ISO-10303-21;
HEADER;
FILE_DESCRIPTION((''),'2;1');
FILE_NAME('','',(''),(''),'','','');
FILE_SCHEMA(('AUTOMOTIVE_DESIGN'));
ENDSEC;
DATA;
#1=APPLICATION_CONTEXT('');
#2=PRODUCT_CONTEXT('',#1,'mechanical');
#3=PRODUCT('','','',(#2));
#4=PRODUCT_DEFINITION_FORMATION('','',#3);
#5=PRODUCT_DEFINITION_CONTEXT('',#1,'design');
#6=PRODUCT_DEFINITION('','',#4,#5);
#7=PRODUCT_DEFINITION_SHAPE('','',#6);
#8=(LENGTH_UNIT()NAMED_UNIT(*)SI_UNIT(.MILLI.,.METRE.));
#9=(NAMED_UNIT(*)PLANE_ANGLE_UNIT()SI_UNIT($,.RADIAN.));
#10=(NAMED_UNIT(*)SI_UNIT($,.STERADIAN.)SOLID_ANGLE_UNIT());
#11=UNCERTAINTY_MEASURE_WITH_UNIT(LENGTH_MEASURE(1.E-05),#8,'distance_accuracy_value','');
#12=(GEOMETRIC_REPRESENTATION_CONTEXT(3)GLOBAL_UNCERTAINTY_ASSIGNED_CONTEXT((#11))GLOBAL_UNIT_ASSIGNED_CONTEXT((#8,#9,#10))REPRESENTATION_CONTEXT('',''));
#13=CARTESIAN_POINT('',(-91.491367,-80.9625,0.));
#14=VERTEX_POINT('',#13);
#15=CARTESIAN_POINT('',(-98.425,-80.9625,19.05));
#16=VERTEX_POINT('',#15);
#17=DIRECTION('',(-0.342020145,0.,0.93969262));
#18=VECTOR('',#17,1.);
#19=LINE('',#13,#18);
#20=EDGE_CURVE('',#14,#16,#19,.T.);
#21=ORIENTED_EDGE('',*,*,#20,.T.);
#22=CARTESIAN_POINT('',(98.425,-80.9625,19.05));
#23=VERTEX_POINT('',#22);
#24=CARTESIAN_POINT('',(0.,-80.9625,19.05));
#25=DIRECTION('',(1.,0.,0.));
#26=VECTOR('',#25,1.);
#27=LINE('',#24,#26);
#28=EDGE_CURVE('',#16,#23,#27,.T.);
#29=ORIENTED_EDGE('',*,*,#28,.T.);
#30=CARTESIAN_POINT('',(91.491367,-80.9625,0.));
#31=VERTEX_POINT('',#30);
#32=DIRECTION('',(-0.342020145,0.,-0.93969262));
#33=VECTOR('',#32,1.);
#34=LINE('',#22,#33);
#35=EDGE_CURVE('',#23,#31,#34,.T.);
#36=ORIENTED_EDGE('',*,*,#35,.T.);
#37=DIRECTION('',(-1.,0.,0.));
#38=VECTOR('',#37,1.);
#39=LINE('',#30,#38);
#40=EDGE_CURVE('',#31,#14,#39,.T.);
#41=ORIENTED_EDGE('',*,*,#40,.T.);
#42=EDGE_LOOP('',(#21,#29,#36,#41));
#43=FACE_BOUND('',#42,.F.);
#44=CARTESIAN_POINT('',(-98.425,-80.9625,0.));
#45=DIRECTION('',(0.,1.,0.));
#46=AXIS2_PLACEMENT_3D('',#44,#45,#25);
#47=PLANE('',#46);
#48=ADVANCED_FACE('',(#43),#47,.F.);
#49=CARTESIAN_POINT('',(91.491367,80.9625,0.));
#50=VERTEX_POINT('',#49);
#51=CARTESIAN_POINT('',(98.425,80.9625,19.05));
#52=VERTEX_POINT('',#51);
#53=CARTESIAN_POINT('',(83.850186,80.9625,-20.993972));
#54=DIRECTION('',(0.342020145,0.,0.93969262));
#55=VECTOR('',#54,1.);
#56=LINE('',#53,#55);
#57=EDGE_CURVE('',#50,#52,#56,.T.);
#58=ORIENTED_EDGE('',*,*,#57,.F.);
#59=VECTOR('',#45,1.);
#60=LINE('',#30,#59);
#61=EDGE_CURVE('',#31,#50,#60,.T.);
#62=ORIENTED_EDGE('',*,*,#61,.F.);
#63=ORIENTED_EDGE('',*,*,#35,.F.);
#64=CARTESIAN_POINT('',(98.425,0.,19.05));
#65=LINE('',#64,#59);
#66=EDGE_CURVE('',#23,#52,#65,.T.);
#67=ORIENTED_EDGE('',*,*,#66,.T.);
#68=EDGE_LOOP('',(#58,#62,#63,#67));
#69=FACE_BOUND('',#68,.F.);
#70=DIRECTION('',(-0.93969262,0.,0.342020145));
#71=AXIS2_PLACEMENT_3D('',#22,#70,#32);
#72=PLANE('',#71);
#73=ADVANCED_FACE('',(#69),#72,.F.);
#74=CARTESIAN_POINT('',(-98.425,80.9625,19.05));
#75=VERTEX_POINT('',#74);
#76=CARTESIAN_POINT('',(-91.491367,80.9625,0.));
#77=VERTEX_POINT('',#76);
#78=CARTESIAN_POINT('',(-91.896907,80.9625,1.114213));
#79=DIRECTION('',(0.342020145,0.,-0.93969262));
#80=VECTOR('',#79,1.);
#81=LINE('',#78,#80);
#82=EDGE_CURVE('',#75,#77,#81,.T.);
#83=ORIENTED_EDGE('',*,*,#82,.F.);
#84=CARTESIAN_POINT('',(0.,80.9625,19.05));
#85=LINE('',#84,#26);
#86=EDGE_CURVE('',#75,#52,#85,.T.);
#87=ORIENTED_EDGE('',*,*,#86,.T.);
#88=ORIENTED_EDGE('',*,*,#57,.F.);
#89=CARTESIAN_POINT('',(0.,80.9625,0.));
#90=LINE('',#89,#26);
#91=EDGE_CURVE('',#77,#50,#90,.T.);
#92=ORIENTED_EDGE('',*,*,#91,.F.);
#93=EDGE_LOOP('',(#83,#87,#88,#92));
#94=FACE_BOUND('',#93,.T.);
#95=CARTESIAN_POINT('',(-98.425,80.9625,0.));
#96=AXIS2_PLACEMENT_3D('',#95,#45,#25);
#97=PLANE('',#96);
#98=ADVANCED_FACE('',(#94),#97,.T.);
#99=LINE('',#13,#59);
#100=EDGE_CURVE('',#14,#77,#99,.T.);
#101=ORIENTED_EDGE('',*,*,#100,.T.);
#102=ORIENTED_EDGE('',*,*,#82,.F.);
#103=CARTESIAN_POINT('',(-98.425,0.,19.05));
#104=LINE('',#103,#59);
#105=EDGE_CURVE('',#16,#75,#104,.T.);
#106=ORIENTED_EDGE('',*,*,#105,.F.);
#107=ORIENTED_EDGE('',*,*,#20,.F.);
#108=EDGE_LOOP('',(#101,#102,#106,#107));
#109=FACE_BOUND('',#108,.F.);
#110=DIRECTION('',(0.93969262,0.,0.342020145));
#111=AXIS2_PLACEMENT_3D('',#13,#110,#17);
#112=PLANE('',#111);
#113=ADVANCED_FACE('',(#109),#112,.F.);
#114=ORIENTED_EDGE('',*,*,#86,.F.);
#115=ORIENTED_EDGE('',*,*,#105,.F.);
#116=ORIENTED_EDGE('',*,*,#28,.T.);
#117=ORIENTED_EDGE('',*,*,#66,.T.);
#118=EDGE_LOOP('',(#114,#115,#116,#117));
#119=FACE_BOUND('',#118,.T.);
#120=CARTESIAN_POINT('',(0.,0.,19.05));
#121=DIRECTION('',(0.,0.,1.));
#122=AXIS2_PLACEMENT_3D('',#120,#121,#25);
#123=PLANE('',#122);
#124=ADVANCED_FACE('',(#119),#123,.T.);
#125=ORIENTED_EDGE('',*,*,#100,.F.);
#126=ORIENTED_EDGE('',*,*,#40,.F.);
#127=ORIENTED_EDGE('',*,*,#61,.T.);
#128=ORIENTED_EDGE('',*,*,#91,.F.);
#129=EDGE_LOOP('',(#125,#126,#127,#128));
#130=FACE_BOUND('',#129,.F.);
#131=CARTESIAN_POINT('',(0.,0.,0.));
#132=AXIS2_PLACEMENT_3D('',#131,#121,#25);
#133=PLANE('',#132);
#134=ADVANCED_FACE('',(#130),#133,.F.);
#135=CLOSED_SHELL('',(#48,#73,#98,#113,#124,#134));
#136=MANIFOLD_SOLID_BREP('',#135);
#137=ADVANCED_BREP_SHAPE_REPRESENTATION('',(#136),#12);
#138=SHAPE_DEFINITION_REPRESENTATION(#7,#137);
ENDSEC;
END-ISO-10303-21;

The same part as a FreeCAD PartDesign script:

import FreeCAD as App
import Part
import Sketcher
Q = App.Units.Quantity


def add_polygon(sketch, points):
    """Adds a closed chain of lines whose ends are joined by coincident constraints."""
    first, n = sketch.GeometryCount, len(points)
    for a, b in zip(points, points[1:] + points[:1]):
        sketch.addGeometry(Part.LineSegment(App.Vector(*a, 0), App.Vector(*b, 0)), False)
    for i in range(n):
        sketch.addConstraint(Sketcher.Constraint("Coincident", first + i, 2, first + (i + 1) % n, 1))

doc = App.newDocument("Part")
body = doc.addObject("PartDesign::Body", "Body")

sketch1 = body.newObject("Sketcher::SketchObject", "Sketch")
sketch1.AttachmentSupport = (doc.getObject("XY_Plane"), [""])
sketch1.MapMode = "FlatFace"
add_polygon(sketch1, [(-98.425, 80.9625), (-98.425, -80.9625), (98.425, -80.9625), (98.425, 80.9625)])
sketch1.addConstraint([
    Sketcher.Constraint("Vertical", 0),
    Sketcher.Constraint("Horizontal", 1),
    Sketcher.Constraint("Vertical", 2),
    Sketcher.Constraint("Horizontal", 3),
    Sketcher.Constraint("Symmetric", 0, 2, 2, 2, -1, 1),
    Sketcher.Constraint("DistanceX", 1, 1, 1, 2, Q("7.75 in")),
    Sketcher.Constraint("DistanceY", 0, 2, 0, 1, Q("6.375 in")),
])
pad1 = body.newObject("PartDesign::Pad", "Pad")
pad1.Profile = sketch1
pad1.Length = Q("0.75 in")

sketch2 = body.newObject("Sketcher::SketchObject", "Sketch001")
sketch2.AttachmentSupport = (doc.getObject("XZ_Plane"), [""])
sketch2.MapMode = "FlatFace"
sketch2.AttachmentOffset = App.Placement(App.Vector(0, 0, 3.1875 * 25.4), App.Rotation())
add_polygon(sketch2, [(-91.491367, 0), (-98.425, 19.05), (-98.425, -13.328268), (98.425, -13.328268), (98.425, 19.05), (91.491367, 0)])
sketch2.addConstraint([
    Sketcher.Constraint("Vertical", 1),
    Sketcher.Constraint("Horizontal", 2),
    Sketcher.Constraint("Vertical", 3),
    Sketcher.Constraint("Horizontal", 5),
    Sketcher.Constraint("Symmetric", 4, 2, 5, 2, -1, 1),
    Sketcher.Constraint("Symmetric", 0, 2, 3, 2, -2),
    Sketcher.Constraint("Angle", 0, Q("110 deg")),
    Sketcher.Constraint("DistanceX", 2, 1, 2, 2, Q("7.75 in")),
    Sketcher.Constraint("DistanceY", -1, 1, 0, 2, Q("0.75 in")),
    Sketcher.Constraint("DistanceY", 1, 2, 1, 1, 32.378268),
])
pocket1 = body.newObject("PartDesign::Pocket", "Pocket")
pocket1.Profile = sketch2
pocket1.Type = "ThroughAll"

doc.recompute()
